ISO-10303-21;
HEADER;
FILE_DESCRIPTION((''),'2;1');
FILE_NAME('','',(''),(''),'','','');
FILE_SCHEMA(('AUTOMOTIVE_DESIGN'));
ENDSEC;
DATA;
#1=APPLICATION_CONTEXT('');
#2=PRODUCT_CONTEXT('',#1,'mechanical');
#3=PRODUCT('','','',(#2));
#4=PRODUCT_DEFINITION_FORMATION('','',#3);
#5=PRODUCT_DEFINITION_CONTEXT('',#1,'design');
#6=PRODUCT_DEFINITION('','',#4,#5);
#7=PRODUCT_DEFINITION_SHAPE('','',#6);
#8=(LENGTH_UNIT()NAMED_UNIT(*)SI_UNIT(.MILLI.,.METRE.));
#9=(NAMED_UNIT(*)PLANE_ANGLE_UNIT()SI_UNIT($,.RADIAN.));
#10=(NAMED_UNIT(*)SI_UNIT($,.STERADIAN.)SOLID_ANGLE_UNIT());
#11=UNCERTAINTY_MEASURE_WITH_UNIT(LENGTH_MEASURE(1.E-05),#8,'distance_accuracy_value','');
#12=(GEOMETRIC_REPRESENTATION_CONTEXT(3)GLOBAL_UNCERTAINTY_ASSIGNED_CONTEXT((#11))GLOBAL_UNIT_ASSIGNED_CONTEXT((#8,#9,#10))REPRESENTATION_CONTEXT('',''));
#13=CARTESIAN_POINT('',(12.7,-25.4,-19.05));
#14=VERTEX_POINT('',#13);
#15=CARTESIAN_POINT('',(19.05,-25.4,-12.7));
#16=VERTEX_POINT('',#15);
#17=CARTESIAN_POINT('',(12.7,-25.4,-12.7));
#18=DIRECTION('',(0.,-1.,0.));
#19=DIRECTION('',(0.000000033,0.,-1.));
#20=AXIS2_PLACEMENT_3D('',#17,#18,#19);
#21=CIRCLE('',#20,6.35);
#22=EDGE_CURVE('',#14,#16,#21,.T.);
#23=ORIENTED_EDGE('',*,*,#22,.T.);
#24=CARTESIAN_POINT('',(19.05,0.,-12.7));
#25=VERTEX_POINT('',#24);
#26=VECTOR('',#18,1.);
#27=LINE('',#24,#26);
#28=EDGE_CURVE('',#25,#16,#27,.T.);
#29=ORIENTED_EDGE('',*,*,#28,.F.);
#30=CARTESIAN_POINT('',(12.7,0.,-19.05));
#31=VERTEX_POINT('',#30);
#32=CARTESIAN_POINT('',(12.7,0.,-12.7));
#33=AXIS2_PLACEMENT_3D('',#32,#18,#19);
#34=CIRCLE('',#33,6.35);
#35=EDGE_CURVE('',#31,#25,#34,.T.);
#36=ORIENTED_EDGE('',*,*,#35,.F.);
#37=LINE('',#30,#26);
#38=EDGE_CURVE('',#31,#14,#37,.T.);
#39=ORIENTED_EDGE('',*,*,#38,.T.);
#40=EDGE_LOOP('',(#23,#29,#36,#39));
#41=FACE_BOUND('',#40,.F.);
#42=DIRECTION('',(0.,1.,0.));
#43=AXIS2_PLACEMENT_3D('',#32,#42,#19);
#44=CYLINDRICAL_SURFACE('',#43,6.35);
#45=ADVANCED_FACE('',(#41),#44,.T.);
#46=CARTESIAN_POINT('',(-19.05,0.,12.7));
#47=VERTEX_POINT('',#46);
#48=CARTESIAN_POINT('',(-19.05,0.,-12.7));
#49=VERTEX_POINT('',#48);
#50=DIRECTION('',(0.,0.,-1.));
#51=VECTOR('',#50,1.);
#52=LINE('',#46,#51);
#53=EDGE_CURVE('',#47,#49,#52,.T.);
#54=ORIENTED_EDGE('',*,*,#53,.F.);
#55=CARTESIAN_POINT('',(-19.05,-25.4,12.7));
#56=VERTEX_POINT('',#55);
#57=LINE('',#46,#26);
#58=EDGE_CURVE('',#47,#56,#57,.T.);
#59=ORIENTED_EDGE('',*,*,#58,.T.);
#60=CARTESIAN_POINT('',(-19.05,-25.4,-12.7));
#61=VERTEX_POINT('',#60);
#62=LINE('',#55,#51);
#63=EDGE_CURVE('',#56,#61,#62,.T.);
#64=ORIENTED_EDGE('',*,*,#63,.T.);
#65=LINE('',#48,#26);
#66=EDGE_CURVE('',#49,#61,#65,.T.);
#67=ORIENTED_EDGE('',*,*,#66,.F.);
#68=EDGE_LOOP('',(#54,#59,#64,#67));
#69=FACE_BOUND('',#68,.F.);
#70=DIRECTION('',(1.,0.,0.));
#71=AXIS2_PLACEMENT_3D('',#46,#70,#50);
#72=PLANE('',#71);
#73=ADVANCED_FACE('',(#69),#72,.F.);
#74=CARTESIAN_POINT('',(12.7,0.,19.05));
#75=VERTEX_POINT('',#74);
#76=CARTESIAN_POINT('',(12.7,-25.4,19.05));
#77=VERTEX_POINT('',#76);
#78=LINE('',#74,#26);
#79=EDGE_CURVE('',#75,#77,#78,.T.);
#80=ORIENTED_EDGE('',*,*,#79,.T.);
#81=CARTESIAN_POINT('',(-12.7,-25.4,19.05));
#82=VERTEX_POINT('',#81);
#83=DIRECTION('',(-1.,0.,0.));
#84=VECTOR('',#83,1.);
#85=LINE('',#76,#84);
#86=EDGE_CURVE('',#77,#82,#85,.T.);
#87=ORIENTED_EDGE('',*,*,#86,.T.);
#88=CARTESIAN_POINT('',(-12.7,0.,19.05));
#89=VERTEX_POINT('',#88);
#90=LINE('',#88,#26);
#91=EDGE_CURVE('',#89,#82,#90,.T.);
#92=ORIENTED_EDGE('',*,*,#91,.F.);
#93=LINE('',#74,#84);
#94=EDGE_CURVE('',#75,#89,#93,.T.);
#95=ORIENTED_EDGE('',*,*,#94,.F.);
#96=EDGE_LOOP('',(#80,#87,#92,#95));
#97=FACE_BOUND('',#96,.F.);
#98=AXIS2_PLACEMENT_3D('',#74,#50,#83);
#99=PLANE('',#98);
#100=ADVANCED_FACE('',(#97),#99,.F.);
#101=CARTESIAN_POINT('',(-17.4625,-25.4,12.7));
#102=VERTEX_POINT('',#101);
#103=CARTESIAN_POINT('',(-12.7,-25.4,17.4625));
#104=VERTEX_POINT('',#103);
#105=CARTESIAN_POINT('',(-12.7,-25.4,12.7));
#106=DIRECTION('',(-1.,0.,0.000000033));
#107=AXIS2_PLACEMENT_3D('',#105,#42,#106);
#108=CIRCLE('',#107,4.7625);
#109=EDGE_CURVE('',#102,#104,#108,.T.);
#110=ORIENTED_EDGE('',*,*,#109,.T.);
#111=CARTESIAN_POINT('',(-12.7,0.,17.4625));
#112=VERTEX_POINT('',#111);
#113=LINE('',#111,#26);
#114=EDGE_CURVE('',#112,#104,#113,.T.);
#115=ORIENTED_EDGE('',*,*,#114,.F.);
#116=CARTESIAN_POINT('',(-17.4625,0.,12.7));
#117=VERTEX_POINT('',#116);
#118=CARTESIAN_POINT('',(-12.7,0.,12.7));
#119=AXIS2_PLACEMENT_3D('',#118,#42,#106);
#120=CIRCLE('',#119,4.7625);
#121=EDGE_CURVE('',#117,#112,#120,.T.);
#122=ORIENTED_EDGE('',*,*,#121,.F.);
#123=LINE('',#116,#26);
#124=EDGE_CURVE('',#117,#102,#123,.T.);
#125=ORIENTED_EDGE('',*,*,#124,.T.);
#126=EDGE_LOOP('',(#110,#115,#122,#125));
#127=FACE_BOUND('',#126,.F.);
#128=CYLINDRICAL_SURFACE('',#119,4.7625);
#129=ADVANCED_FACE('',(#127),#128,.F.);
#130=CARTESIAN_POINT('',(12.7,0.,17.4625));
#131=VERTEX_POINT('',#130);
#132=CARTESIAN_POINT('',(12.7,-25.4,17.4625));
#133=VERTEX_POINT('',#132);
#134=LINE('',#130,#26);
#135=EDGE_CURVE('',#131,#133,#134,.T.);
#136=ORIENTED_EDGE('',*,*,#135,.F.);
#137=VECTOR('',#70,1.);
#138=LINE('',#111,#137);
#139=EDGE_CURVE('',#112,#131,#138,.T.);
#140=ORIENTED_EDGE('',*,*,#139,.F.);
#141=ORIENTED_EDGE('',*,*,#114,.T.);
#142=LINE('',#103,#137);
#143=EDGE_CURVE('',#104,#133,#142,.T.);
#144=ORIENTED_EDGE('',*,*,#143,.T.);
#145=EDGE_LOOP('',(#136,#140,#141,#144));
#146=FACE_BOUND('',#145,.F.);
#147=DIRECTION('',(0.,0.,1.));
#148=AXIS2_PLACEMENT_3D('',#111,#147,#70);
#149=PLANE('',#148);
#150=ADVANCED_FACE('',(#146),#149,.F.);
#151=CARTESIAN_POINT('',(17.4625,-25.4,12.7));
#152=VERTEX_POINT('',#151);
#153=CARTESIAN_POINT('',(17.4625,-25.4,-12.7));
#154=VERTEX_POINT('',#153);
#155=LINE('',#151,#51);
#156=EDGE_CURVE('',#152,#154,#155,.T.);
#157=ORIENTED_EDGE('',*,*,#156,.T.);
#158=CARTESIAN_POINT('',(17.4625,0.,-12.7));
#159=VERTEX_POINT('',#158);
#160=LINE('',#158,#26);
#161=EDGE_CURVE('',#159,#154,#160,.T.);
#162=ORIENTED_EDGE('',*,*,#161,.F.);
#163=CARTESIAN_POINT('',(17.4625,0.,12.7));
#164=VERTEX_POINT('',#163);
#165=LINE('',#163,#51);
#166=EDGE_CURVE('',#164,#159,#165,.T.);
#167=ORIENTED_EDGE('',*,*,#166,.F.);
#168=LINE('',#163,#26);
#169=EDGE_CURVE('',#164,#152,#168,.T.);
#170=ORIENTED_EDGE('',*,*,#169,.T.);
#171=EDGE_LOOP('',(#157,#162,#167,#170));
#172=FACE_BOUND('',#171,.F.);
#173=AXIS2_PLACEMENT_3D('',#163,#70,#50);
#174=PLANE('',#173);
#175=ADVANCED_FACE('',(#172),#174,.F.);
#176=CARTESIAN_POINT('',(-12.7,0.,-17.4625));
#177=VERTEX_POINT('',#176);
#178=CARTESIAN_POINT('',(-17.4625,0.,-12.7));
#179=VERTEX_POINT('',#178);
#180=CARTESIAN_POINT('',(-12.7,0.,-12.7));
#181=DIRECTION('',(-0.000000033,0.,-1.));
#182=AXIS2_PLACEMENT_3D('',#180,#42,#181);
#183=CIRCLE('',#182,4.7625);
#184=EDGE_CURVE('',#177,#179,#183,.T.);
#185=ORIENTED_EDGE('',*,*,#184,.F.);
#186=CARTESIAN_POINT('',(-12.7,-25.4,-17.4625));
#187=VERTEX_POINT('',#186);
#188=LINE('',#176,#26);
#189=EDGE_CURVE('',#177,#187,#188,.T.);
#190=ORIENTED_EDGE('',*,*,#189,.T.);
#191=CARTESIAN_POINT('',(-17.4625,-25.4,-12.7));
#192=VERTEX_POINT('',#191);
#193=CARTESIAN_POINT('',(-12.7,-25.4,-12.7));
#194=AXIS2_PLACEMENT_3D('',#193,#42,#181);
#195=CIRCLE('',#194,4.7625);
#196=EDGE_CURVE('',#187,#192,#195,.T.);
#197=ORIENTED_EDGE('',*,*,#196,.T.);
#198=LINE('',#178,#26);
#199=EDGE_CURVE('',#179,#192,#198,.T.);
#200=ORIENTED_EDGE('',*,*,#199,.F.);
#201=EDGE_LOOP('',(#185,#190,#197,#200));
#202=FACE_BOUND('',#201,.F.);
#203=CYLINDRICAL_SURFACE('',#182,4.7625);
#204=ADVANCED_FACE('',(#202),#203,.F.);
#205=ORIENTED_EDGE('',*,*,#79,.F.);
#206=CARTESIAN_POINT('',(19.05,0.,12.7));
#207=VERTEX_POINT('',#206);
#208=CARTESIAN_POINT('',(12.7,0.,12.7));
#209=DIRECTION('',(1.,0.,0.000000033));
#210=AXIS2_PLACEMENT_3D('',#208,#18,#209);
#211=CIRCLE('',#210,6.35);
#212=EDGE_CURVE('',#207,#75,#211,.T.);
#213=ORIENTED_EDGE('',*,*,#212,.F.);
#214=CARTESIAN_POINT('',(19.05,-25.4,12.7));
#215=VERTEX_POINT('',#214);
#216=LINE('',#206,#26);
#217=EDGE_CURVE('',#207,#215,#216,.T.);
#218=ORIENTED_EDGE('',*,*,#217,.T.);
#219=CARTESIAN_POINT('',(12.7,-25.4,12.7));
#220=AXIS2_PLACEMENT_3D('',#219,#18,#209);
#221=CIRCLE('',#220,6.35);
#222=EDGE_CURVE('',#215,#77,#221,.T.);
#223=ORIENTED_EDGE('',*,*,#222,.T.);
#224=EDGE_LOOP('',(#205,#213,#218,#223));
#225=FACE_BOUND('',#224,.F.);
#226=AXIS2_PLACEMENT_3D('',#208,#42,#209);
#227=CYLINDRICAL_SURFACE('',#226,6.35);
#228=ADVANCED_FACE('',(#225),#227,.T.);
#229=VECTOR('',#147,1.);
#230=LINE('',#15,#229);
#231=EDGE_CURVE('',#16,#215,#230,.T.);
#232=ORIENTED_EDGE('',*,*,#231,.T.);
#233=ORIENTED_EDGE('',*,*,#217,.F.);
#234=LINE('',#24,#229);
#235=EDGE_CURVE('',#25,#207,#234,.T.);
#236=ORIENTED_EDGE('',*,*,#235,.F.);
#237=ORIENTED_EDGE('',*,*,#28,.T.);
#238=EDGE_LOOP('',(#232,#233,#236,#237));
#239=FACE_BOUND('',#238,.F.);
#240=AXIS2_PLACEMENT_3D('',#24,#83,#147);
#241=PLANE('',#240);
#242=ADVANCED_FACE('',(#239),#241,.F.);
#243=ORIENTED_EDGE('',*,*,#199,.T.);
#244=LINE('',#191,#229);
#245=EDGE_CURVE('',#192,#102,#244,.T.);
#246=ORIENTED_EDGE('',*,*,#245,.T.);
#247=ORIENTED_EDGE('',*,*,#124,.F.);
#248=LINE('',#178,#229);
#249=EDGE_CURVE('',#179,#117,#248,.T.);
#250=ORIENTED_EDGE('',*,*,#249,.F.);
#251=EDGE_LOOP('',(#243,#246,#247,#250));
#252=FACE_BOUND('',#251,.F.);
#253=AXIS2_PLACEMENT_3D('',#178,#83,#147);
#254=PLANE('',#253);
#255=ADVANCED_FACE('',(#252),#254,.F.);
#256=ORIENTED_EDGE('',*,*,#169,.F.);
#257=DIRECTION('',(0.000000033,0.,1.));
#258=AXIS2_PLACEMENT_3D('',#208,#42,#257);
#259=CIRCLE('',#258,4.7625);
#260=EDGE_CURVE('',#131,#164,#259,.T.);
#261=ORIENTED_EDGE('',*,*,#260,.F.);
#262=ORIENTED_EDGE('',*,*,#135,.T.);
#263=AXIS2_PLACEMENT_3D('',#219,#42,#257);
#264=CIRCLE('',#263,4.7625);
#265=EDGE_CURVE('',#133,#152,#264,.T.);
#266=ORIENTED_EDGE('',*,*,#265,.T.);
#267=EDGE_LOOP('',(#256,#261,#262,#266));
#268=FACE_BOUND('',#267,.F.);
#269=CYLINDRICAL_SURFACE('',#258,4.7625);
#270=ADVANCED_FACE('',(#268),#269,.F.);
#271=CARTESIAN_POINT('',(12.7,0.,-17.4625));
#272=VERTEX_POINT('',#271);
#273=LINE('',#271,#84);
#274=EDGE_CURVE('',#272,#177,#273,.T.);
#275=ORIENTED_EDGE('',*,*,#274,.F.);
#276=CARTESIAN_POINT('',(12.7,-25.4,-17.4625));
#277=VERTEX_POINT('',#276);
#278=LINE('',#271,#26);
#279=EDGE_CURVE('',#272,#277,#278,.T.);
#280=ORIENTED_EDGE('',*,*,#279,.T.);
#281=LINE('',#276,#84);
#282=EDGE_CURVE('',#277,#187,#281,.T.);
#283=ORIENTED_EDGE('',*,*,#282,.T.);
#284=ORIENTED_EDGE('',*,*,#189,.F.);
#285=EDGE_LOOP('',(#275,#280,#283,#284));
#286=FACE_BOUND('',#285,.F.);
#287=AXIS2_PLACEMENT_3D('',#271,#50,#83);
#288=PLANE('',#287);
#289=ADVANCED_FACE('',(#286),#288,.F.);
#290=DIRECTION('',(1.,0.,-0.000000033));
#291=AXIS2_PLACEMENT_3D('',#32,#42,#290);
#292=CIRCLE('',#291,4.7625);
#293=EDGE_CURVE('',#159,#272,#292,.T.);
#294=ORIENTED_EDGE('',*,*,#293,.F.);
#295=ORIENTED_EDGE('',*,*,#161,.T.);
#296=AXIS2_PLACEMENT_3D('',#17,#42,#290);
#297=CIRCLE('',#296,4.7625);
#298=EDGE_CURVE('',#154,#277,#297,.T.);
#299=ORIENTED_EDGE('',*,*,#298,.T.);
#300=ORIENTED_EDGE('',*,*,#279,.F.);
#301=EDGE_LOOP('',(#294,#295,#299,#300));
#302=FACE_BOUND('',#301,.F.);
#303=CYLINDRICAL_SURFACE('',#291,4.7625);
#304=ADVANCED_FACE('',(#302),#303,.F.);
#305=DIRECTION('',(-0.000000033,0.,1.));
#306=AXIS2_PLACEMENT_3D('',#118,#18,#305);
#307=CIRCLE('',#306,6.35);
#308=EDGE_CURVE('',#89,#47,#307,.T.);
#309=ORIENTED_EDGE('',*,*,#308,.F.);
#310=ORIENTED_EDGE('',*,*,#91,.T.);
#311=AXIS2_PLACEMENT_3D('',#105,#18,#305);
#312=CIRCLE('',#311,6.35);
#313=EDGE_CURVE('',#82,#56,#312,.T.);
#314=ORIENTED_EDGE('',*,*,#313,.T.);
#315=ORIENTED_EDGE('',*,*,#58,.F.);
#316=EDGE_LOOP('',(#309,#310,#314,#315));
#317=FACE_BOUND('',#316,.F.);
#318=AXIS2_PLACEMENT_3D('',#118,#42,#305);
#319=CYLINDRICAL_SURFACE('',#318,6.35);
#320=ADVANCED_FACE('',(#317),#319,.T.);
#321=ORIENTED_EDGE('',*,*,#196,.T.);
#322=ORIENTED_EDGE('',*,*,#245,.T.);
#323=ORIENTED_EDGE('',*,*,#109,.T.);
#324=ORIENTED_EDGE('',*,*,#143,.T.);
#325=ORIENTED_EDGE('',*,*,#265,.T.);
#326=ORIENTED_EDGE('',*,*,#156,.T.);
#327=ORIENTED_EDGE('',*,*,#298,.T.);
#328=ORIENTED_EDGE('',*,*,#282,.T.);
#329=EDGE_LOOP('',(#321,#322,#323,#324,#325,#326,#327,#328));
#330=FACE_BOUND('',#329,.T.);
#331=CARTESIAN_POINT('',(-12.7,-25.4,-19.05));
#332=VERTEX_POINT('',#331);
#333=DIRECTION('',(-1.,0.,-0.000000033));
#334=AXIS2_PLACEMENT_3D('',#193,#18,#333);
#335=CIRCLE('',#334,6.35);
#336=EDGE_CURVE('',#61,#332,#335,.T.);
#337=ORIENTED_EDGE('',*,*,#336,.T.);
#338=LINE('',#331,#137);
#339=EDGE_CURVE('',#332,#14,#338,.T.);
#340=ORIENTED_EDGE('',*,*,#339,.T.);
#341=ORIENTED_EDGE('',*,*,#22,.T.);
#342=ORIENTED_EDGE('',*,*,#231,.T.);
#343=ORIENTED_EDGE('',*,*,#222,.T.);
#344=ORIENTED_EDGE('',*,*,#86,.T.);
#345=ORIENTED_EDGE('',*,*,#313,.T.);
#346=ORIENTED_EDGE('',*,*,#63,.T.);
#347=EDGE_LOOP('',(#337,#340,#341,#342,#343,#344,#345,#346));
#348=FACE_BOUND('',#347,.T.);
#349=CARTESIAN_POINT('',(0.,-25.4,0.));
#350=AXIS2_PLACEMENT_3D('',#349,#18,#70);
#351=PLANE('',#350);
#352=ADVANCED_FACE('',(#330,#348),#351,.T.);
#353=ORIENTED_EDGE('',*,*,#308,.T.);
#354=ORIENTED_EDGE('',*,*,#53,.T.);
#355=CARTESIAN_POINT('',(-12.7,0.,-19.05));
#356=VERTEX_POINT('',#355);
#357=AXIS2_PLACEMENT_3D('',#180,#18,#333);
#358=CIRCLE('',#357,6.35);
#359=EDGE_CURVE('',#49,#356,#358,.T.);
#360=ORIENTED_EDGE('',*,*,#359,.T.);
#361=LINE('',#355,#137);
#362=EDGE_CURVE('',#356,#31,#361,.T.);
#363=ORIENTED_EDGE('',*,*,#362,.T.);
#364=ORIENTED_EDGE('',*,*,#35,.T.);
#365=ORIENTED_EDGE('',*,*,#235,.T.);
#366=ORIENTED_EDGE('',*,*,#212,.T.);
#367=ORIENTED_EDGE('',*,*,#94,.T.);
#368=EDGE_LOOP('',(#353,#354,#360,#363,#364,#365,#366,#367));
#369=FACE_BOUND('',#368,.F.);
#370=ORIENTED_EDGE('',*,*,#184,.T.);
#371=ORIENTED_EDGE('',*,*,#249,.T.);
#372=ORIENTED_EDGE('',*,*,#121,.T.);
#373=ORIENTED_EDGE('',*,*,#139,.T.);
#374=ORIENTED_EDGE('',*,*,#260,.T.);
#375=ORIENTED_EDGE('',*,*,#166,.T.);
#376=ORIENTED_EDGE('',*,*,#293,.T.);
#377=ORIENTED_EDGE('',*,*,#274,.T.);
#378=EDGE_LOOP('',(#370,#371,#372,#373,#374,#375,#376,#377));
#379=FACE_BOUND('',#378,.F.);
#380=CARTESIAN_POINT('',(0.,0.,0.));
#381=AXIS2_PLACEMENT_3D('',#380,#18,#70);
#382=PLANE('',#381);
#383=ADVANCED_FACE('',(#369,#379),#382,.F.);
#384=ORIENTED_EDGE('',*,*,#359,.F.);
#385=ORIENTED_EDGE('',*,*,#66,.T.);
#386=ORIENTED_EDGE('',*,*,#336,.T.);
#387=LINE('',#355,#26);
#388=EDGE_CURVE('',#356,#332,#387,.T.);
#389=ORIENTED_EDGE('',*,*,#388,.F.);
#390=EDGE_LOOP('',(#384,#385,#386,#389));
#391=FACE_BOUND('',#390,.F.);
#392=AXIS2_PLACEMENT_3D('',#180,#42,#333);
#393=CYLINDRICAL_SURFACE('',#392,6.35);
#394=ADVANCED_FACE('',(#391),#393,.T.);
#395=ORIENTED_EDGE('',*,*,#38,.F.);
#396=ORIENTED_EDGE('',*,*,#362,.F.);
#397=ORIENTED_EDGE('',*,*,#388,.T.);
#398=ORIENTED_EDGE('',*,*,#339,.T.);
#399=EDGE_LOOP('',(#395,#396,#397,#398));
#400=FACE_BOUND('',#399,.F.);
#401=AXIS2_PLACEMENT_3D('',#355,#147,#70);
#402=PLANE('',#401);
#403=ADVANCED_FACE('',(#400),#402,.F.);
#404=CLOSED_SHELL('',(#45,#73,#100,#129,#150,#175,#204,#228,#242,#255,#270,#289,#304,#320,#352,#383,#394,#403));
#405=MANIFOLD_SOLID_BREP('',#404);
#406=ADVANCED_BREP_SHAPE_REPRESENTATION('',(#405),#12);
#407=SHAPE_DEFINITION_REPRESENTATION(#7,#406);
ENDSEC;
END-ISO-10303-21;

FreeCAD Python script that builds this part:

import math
import FreeCAD as App
import Part
import Sketcher
Q = App.Units.Quantity

doc = App.newDocument("Part")
body = doc.addObject("PartDesign::Body", "Body")

# Sketch on XZ plane
sketch1 = body.newObject("Sketcher::SketchObject", "Sketch")
sketch1.AttachmentSupport = (doc.getObject("XZ_Plane"), [""])
sketch1.MapMode = "FlatFace"
sketch1.addGeometry(Part.LineSegment(App.Vector(-12.7, -19.1, 0), App.Vector(12.7, -19.1, 0)), False)
sketch1.addGeometry(Part.ArcOfCircle(Part.Circle(App.Vector(12.7, -12.7, 0), App.Vector(0, 0, 1), 6.4), math.radians(-90), math.radians(0)), False)
sketch1.addGeometry(Part.LineSegment(App.Vector(19.1, -12.7, 0), App.Vector(19.1, 12.7, 0)), False)
sketch1.addGeometry(Part.ArcOfCircle(Part.Circle(App.Vector(12.7, 12.7, 0), App.Vector(0, 0, 1), 6.4), math.radians(0), math.radians(90)), False)
sketch1.addGeometry(Part.LineSegment(App.Vector(12.7, 19.1, 0), App.Vector(-12.7, 19.1, 0)), False)
sketch1.addGeometry(Part.ArcOfCircle(Part.Circle(App.Vector(-12.7, 12.7, 0), App.Vector(0, 0, 1), 6.4), math.radians(90), math.radians(180)), False)
sketch1.addGeometry(Part.LineSegment(App.Vector(-19.1, 12.7, 0), App.Vector(-19.1, -12.7, 0)), False)
sketch1.addGeometry(Part.ArcOfCircle(Part.Circle(App.Vector(-12.7, -12.7, 0), App.Vector(0, 0, 1), 6.4), math.radians(-180), math.radians(-90)), False)
sketch1.addGeometry(Part.ArcOfCircle(Part.Circle(App.Vector(-12.7, 12.7, 0), App.Vector(0, 0, 1), 4.8), math.radians(90), math.radians(180)), False)
sketch1.addGeometry(Part.LineSegment(App.Vector(-12.7, 17.5, 0), App.Vector(12.7, 17.5, 0)), False)
sketch1.addGeometry(Part.ArcOfCircle(Part.Circle(App.Vector(12.7, 12.7, 0), App.Vector(0, 0, 1), 4.8), math.radians(0), math.radians(90)), False)
sketch1.addGeometry(Part.LineSegment(App.Vector(17.5, 12.7, 0), App.Vector(17.5, -12.7, 0)), False)
sketch1.addGeometry(Part.ArcOfCircle(Part.Circle(App.Vector(12.7, -12.7, 0), App.Vector(0, 0, 1), 4.8), math.radians(-90), math.radians(0)), False)
sketch1.addGeometry(Part.LineSegment(App.Vector(12.7, -17.5, 0), App.Vector(-12.7, -17.5, 0)), False)
sketch1.addGeometry(Part.ArcOfCircle(Part.Circle(App.Vector(-12.7, -12.7, 0), App.Vector(0, 0, 1), 4.8), math.radians(-180), math.radians(-90)), False)
sketch1.addGeometry(Part.LineSegment(App.Vector(-17.5, -12.7, 0), App.Vector(-17.5, 12.7, 0)), False)
sketch1.addConstraint(Sketcher.Constraint("Tangent", 0, 2, 1, 1))
sketch1.addConstraint(Sketcher.Constraint("Tangent", 1, 2, 2, 1))
sketch1.addConstraint(Sketcher.Constraint("Tangent", 2, 2, 3, 1))
sketch1.addConstraint(Sketcher.Constraint("Tangent", 3, 2, 4, 1))
sketch1.addConstraint(Sketcher.Constraint("Tangent", 4, 2, 5, 1))
sketch1.addConstraint(Sketcher.Constraint("Tangent", 5, 2, 6, 1))
sketch1.addConstraint(Sketcher.Constraint("Tangent", 6, 2, 7, 1))
sketch1.addConstraint(Sketcher.Constraint("Tangent", 7, 2, 0, 1))
sketch1.addConstraint(Sketcher.Constraint("Tangent", 8, 1, 9, 1))
sketch1.addConstraint(Sketcher.Constraint("Tangent", 9, 2, 10, 2))
sketch1.addConstraint(Sketcher.Constraint("Tangent", 10, 1, 11, 1))
sketch1.addConstraint(Sketcher.Constraint("Tangent", 11, 2, 12, 2))
sketch1.addConstraint(Sketcher.Constraint("Tangent", 12, 1, 13, 1))
sketch1.addConstraint(Sketcher.Constraint("Tangent", 13, 2, 14, 2))
sketch1.addConstraint(Sketcher.Constraint("Tangent", 14, 1, 15, 1))
sketch1.addConstraint(Sketcher.Constraint("Tangent", 15, 2, 8, 2))
sketch1.addConstraint(Sketcher.Constraint("Horizontal", 0))
sketch1.addConstraint(Sketcher.Constraint("Vertical", 2))
sketch1.addConstraint(Sketcher.Constraint("Horizontal", 4))
sketch1.addConstraint(Sketcher.Constraint("Vertical", 6))
sketch1.addConstraint(Sketcher.Constraint("Horizontal", 9))
sketch1.addConstraint(Sketcher.Constraint("Vertical", 11))
sketch1.addConstraint(Sketcher.Constraint("Horizontal", 13))
sketch1.addConstraint(Sketcher.Constraint("Vertical", 15))
sketch1.addConstraint(Sketcher.Constraint("Coincident", 8, 3, 5, 3))
sketch1.addConstraint(Sketcher.Constraint("Coincident", 10, 3, 3, 3))
sketch1.addConstraint(Sketcher.Constraint("Coincident", 12, 3, 1, 3))
sketch1.addConstraint(Sketcher.Constraint("Equal", 1, 3))
sketch1.addConstraint(Sketcher.Constraint("Equal", 3, 5))
sketch1.addConstraint(Sketcher.Constraint("Equal", 5, 7))
sketch1.addConstraint(Sketcher.Constraint("Equal", 12, 14))
sketch1.addConstraint(Sketcher.Constraint("Symmetric", 1, 3, 5, 3, -1, 1))
sketch1.addConstraint(Sketcher.Constraint("Equal", 13, 2))
sketch1.addConstraint(Sketcher.Constraint("DistanceX", 0, 1, 0, 2, Q("1 in")))
sketch1.addConstraint(Sketcher.Constraint("Radius", 1, Q("0.25 in")))
sketch1.addConstraint(Sketcher.Constraint("Radius", 8, Q("0.1875 in")))
pad1 = body.newObject("PartDesign::Pad", "Pad")
pad1.Profile = sketch1
pad1.Length = Q("1 in")

doc.recompute()
